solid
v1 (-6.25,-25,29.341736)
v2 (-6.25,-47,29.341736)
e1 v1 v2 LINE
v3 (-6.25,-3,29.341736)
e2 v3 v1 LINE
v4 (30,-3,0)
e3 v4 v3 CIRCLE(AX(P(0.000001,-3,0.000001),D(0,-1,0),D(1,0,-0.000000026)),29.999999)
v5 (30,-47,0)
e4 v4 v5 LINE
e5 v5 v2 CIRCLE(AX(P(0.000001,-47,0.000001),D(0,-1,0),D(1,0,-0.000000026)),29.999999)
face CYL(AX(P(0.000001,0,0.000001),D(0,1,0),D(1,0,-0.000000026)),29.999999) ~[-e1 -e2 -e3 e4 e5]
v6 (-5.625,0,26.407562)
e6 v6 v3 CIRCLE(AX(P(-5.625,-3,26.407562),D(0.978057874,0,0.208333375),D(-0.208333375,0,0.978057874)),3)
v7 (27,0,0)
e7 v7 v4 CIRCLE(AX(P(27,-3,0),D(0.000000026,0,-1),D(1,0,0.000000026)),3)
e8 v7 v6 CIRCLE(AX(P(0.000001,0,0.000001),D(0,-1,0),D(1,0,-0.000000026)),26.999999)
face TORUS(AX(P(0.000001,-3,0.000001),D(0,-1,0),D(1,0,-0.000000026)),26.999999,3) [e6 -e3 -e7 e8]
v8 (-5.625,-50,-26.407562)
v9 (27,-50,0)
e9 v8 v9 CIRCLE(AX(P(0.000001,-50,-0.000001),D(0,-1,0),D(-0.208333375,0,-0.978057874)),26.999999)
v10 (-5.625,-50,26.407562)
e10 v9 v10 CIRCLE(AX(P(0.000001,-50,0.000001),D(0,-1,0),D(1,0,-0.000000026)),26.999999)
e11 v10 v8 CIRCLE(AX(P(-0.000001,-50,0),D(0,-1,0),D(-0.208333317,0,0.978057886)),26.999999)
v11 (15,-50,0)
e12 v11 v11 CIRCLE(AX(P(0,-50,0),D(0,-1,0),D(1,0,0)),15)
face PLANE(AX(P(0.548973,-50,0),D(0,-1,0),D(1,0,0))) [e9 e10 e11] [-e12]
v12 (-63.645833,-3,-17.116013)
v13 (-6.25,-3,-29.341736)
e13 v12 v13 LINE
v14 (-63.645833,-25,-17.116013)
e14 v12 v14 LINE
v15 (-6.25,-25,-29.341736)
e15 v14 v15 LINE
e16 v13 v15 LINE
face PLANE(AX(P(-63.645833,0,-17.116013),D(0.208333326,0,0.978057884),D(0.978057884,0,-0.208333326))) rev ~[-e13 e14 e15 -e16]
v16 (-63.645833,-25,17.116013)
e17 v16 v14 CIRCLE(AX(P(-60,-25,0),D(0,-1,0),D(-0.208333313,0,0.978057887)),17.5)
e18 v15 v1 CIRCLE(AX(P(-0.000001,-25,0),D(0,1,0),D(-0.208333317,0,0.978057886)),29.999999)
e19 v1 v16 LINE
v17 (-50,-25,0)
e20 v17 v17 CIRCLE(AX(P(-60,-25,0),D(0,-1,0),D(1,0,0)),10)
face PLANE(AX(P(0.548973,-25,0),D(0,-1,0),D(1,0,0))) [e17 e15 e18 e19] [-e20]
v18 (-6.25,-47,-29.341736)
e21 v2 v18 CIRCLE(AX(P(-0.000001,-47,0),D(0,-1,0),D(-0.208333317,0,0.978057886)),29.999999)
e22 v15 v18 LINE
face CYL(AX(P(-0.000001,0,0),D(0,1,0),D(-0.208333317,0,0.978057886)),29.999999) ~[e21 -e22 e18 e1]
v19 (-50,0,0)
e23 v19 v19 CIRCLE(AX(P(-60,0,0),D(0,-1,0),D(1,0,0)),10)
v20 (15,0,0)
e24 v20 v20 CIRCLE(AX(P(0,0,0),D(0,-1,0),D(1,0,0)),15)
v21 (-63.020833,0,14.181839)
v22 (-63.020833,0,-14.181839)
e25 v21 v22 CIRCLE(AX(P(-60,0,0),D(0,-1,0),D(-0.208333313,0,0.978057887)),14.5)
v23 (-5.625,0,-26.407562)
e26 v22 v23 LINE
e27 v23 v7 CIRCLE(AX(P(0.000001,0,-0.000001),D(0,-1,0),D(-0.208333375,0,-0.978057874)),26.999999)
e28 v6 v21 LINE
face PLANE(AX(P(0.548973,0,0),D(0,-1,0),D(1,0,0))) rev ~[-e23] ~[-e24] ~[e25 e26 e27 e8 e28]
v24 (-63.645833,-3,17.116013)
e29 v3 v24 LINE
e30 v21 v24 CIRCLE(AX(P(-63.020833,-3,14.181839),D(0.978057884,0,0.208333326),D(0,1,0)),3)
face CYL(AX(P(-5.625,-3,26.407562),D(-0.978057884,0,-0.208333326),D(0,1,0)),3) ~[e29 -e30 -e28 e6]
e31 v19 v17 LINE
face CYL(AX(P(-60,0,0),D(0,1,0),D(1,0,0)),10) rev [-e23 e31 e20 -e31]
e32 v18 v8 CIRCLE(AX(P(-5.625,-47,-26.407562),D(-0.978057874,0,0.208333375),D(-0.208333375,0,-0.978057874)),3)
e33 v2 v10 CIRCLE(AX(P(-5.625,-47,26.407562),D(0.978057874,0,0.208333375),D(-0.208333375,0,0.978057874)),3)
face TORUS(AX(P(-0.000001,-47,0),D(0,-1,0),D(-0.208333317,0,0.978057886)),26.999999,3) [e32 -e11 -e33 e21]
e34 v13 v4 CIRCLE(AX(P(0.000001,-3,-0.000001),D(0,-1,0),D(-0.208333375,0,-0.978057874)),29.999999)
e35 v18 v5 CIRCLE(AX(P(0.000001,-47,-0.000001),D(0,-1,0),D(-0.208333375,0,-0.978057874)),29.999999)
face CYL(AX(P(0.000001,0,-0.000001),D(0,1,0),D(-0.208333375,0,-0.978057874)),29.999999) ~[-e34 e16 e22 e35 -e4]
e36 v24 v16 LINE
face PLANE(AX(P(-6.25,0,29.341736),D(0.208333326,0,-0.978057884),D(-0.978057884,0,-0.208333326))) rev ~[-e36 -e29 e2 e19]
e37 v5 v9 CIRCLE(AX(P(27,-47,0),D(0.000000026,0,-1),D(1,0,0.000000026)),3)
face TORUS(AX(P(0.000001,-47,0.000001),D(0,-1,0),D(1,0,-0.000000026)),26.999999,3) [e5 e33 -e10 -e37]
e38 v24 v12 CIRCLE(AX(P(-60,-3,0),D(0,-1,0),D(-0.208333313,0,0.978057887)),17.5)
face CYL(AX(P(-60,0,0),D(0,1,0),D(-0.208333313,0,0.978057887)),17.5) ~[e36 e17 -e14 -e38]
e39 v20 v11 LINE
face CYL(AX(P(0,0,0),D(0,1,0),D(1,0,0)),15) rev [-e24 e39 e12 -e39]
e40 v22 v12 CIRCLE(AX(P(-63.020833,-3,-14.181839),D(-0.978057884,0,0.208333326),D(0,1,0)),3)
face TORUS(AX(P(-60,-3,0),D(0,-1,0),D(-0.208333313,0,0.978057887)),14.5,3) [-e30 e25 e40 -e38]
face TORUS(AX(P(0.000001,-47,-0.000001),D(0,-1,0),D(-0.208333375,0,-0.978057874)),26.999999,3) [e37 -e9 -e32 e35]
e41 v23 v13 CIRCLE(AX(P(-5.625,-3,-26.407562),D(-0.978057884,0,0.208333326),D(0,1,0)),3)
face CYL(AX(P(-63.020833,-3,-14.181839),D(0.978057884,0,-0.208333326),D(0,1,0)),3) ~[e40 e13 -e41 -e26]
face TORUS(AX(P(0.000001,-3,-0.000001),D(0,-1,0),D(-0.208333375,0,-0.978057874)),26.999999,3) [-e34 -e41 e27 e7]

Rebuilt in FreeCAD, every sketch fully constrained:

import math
import FreeCAD as App
import Part
import Sketcher

V = App.Vector
Q = App.Units.Quantity


def edges_at(feature, points):
    """Names of the edges that pass closest to the given points."""
    edges = feature.Shape.Edges
    near = lambda p: min(range(len(edges)), key=lambda i: edges[i].distToShape(Part.Vertex(*p))[0])
    return sorted({f"Edge{near(p) + 1}" for p in points})

doc = App.newDocument("Part")
body = doc.addObject("PartDesign::Body", "Body")

sketch1 = body.newObject("Sketcher::SketchObject", "Sketch")
sketch1.AttachmentSupport = (doc.getObject("XZ_Plane"), [""])
sketch1.MapMode = "FlatFace"
sketch1.addGeometry([
    Part.ArcOfCircle(Part.Circle(V(0, 0, 0), V(0, 0, 1), 30), math.radians(-102), math.radians(0)),
    Part.ArcOfCircle(Part.Circle(V(0, 0, 0), V(0, 0, 1), 30), math.radians(0), math.radians(102)),
    Part.LineSegment(V(-6, 29, 0), V(-64, 17, 0)),
    Part.ArcOfCircle(Part.Circle(V(-60, 0, 0), V(0, 0, 1), 17), math.radians(102), math.radians(258)),
    Part.LineSegment(V(-64, -17, 0), V(-6, -29, 0)),
    Part.Circle(V(-60, 0, 0), V(0, 0, 1), 10),
    Part.Circle(V(0, 0, 0), V(0, 0, 1), 15),
], False)
sketch1.addConstraint([
    Sketcher.Constraint("Tangent", 0, 2, 1, 1),
    Sketcher.Constraint("Tangent", 1, 2, 2, 1),
    Sketcher.Constraint("Tangent", 2, 2, 3, 1),
    Sketcher.Constraint("Tangent", 3, 2, 4, 1),
    Sketcher.Constraint("Tangent", 4, 2, 0, 1),
    Sketcher.Constraint("Coincident", 0, 3, -1, 1),
    Sketcher.Constraint("Coincident", 6, 3, -1, 1),
    Sketcher.Constraint("Coincident", 5, 3, 3, 3),
    Sketcher.Constraint("Equal", 0, 1),
    Sketcher.Constraint("PointOnObject", 3, 3, -1),
    Sketcher.Constraint("PointOnObject", 0, 2, -1),
    Sketcher.Constraint("Diameter", 5, Q("20 mm")),
    Sketcher.Constraint("Diameter", 6, Q("30 mm")),
    Sketcher.Constraint("Radius", 0, Q("29.999999 mm")),
    Sketcher.Constraint("Radius", 3, Q("17.5 mm")),
    Sketcher.Constraint("DistanceX", 3, 3, -1, 1, Q("60 mm")),
])
pad1 = body.newObject("PartDesign::Pad", "Pad")
pad1.Profile = sketch1
pad1.Length = 25

sketch2 = body.newObject("Sketcher::SketchObject", "Sketch001")
sketch2.AttachmentSupport = (doc.getObject("XZ_Plane"), [""])
sketch2.MapMode = "FlatFace"
sketch2.addGeometry([
    Part.ArcOfCircle(Part.Circle(V(0, 0, 0), V(0, 0, 1), 30), math.radians(-102), math.radians(0)),
    Part.ArcOfCircle(Part.Circle(V(0, 0, 0), V(0, 0, 1), 30), math.radians(0), math.radians(102)),
    Part.ArcOfCircle(Part.Circle(V(0, 0, 0), V(0, 0, 1), 30), math.radians(102), math.radians(258)),
    Part.Circle(V(0, 0, 0), V(0, 0, 1), 15),
], False)
sketch2.addConstraint([
    Sketcher.Constraint("Tangent", 0, 2, 1, 1),
    Sketcher.Constraint("Tangent", 1, 2, 2, 1),
    Sketcher.Constraint("Tangent", 2, 2, 0, 1),
    Sketcher.Constraint("Coincident", 0, 3, -1, 1),
    Sketcher.Constraint("Coincident", 3, 3, -1, 1),
    Sketcher.Constraint("PointOnObject", 0, 2, -1),
    Sketcher.Constraint("Vertical", 1, 2, 2, 2),
    Sketcher.Constraint("Diameter", 3, Q("30 mm")),
    Sketcher.Constraint("Radius", 0, Q("29.999999 mm")),
    Sketcher.Constraint("DistanceX", 1, 2, -1, 1, Q("6.25 mm")),
])
pad2 = body.newObject("PartDesign::Pad", "Pad001")
pad2.Profile = sketch2
pad2.Length = 50
doc.recompute()

fillet = body.newObject("PartDesign::Fillet", "Fillet")
fillet.Base = (pad2, edges_at(pad2, [
    (18.875, -50, -23.318),
    (30, -25, 0),
    (-34.948, 0, -23.229),
    (-77.5, 0, 0),
    (-34.948, 0, 23.229),
]))
fillet.Radius = 3

doc.recompute()
